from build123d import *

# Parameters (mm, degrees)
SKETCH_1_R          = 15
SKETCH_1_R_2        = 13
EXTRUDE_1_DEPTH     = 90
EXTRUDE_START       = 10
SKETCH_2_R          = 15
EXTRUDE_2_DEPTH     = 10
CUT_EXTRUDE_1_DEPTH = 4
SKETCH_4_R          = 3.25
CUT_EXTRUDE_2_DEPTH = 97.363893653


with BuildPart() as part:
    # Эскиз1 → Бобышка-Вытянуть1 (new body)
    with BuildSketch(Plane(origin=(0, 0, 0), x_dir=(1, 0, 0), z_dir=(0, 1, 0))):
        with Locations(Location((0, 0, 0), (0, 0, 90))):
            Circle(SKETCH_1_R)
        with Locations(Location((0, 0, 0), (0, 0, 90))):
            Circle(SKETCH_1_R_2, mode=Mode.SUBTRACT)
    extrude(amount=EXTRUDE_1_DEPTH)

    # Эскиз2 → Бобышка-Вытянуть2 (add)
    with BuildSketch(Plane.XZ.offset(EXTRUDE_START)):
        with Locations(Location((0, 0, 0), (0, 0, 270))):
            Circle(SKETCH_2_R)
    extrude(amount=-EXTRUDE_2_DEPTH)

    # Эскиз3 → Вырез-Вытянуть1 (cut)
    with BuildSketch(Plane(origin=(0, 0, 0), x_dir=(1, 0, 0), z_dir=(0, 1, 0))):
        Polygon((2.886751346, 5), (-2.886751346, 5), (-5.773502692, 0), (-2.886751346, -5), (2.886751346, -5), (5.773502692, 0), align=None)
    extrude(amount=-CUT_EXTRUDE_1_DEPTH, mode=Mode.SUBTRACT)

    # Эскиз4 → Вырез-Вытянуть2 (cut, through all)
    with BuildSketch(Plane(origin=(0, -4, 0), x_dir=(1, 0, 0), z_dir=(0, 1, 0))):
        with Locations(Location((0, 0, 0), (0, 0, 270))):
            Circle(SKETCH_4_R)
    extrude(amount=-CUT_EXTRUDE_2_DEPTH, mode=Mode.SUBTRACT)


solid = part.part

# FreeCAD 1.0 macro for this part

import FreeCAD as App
import Part
import Sketcher
Q = App.Units.Quantity

doc = App.newDocument("Part")
body = doc.addObject("PartDesign::Body", "Body")

sketch1 = body.newObject("Sketcher::SketchObject", "Sketch")
sketch1.AttachmentSupport = (doc.getObject("XZ_Plane"), [""])
sketch1.MapMode = "FlatFace"
sketch1.addGeometry(Part.Circle(App.Vector(0, 0, 0), App.Vector(0, 0, 1), 15), False)
sketch1.addGeometry(Part.Circle(App.Vector(0, 0, 0), App.Vector(0, 0, 1), 13), False)
sketch1.addConstraint(Sketcher.Constraint("Coincident", 0, 3, -1, 1))
sketch1.addConstraint(Sketcher.Constraint("Coincident", 1, 3, -1, 1))
sketch1.addConstraint(Sketcher.Constraint("Diameter", 0, 30.0))
sketch1.addConstraint(Sketcher.Constraint("Diameter", 1, 26.0))
pad1 = body.newObject("PartDesign::Pad", "Pad")
pad1.Profile = sketch1
pad1.Length = 90
pad1.Reversed = True

sketch2 = body.newObject("Sketcher::SketchObject", "Sketch001")
sketch2.AttachmentSupport = (doc.getObject("XZ_Plane"), [""])
sketch2.MapMode = "FlatFace"
sketch2.AttachmentOffset = App.Placement(App.Vector(0, 0, 10), App.Rotation())
sketch2.addGeometry(Part.Circle(App.Vector(0, 0, 0), App.Vector(0, 0, 1), 15), False)
sketch2.addConstraint(Sketcher.Constraint("Coincident", 0, 3, -1, 1))
sketch2.addConstraint(Sketcher.Constraint("Diameter", 0, 30.0))
pad2 = body.newObject("PartDesign::Pad", "Pad001")
pad2.Profile = sketch2
pad2.Length = 10
pad2.Reversed = True

sketch3 = body.newObject("Sketcher::SketchObject", "Sketch002")
sketch3.AttachmentSupport = (doc.getObject("XZ_Plane"), [""])
sketch3.MapMode = "FlatFace"
sketch3.addGeometry(Part.LineSegment(App.Vector(3, -5, 0), App.Vector(-3, -5, 0)), False)
sketch3.addGeometry(Part.LineSegment(App.Vector(-3, -5, 0), App.Vector(-6, 0, 0)), False)
sketch3.addGeometry(Part.LineSegment(App.Vector(-6, 0, 0), App.Vector(-3, 5, 0)), False)
sketch3.addGeometry(Part.LineSegment(App.Vector(-3, 5, 0), App.Vector(3, 5, 0)), False)
sketch3.addGeometry(Part.LineSegment(App.Vector(3, 5, 0), App.Vector(6, 0, 0)), False)
sketch3.addGeometry(Part.LineSegment(App.Vector(6, 0, 0), App.Vector(3, -5, 0)), False)
sketch3.addConstraint(Sketcher.Constraint("Coincident", 0, 2, 1, 1))
sketch3.addConstraint(Sketcher.Constraint("Coincident", 1, 2, 2, 1))
sketch3.addConstraint(Sketcher.Constraint("Coincident", 2, 2, 3, 1))
sketch3.addConstraint(Sketcher.Constraint("Coincident", 3, 2, 4, 1))
sketch3.addConstraint(Sketcher.Constraint("Coincident", 4, 2, 5, 1))
sketch3.addConstraint(Sketcher.Constraint("Coincident", 5, 2, 0, 1))
sketch3.addConstraint(Sketcher.Constraint("Horizontal", 0))
sketch3.addConstraint(Sketcher.Constraint("Horizontal", 3))
sketch3.addConstraint(Sketcher.Constraint("Symmetric", 0, 2, 3, 2, -1, 1))
sketch3.addConstraint(Sketcher.Constraint("Symmetric", 1, 2, 4, 2, -1, 1))
sketch3.addConstraint(Sketcher.Constraint("PointOnObject", 1, 2, -1))
sketch3.addConstraint(Sketcher.Constraint("Parallel", 2, 5))
sketch3.addConstraint(Sketcher.Constraint("Vertical", 0, 2, 2, 2))
sketch3.addConstraint(Sketcher.Constraint("Angle", 1, Q("120 deg")))
sketch3.addConstraint(Sketcher.Constraint("DistanceY", 0, 2, -1, 1, 5.0))
sketch3.addConstraint(Sketcher.Constraint("DistanceX", 0, 2, 0, 1, 5.773503))
pocket1 = body.newObject("PartDesign::Pocket", "Pocket")
pocket1.Profile = sketch3
pocket1.Length = 4
pocket1.Reversed = True

sketch4 = body.newObject("Sketcher::SketchObject", "Sketch003")
sketch4.AttachmentSupport = (doc.getObject("XZ_Plane"), [""])
sketch4.MapMode = "FlatFace"
sketch4.AttachmentOffset = App.Placement(App.Vector(0, 0, 4), App.Rotation())
sketch4.addGeometry(Part.Circle(App.Vector(0, 0, 0), App.Vector(0, 0, 1), 3.2), False)
sketch4.addConstraint(Sketcher.Constraint("Coincident", 0, 3, -1, 1))
sketch4.addConstraint(Sketcher.Constraint("Diameter", 0, 6.5))
pocket2 = body.newObject("PartDesign::Pocket", "Pocket001")
pocket2.Profile = sketch4
pocket2.Type = "ThroughAll"
pocket2.Reversed = True

doc.recompute()
